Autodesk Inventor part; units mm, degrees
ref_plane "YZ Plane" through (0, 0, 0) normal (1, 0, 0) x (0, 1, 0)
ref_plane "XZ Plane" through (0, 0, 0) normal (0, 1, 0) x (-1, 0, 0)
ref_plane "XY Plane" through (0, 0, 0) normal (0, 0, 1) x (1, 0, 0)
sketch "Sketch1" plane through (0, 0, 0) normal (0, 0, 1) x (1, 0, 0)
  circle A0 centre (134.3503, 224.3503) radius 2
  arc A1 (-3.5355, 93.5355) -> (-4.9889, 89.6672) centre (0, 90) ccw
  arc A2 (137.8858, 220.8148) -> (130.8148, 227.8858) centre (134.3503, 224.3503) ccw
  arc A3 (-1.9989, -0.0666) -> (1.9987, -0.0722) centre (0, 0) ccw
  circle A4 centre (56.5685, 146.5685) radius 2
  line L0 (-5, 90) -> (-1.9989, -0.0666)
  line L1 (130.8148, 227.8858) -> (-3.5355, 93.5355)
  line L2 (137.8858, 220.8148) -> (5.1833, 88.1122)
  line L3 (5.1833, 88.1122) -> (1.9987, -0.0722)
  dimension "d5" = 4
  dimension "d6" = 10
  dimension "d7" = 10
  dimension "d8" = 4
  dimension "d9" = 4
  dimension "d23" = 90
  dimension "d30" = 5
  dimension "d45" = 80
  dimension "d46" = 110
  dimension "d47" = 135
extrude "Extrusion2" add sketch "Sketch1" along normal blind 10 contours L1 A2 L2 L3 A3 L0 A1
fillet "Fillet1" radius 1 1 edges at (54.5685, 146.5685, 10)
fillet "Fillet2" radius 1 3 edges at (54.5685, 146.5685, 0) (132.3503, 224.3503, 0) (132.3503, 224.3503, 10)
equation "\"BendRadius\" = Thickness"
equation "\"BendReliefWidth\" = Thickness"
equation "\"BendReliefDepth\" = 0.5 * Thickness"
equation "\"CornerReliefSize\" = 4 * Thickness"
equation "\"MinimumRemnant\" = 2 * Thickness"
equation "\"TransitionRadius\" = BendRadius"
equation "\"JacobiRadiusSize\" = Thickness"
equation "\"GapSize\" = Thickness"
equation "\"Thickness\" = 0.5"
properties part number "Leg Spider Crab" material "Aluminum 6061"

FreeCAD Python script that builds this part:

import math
import FreeCAD as App
import Part
import Sketcher

V = App.Vector
Q = App.Units.Quantity


def edges_at(feature, points):
    """Names of the edges that pass closest to the given points."""
    edges = feature.Shape.Edges
    near = lambda p: min(range(len(edges)), key=lambda i: edges[i].distToShape(Part.Vertex(*p))[0])
    return sorted({f"Edge{near(p) + 1}" for p in points})

doc = App.newDocument("Part")
body = doc.addObject("PartDesign::Body", "Body")

sketch1 = body.newObject("Sketcher::SketchObject", "Sketch")
sketch1.AttachmentSupport = (doc.getObject("XY_Plane"), [""])
sketch1.MapMode = "FlatFace"
sketch1.addGeometry(Part.LineSegment(V(130.8, 227.9, 0), V(-3.5, 93.5, 0)), False)
sketch1.addGeometry(Part.ArcOfCircle(Part.Circle(V(0, 90, 0), V(0, 0, 1), 5), math.radians(135), math.radians(180)), False)
sketch1.addGeometry(Part.LineSegment(V(-5, 90, 0), V(-2, -0.1, 0)), False)
sketch1.addGeometry(Part.ArcOfCircle(Part.Circle(V(0, 0, 0), V(0, 0, 1), 2), math.radians(-178), math.radians(-2)), False)
sketch1.addGeometry(Part.LineSegment(V(2, -0.1, 0), V(5.2, 88.1, 0)), False)
sketch1.addGeometry(Part.LineSegment(V(5.2, 88.1, 0), V(137.9, 220.8, 0)), False)
sketch1.addGeometry(Part.ArcOfCircle(Part.Circle(V(134.4, 224.4, 0), V(0, 0, 1), 5), math.radians(-45), math.radians(135)), False)
sketch1.addGeometry(Part.Circle(V(56.6, 146.6, 0), V(0, 0, 1), 2), False)
sketch1.addGeometry(Part.Circle(V(134.4, 224.4, 0), V(0, 0, 1), 2), False)
sketch1.addConstraint(Sketcher.Constraint("Tangent", 0, 2, 1, 1))
sketch1.addConstraint(Sketcher.Constraint("Coincident", 1, 2, 2, 1))
sketch1.addConstraint(Sketcher.Constraint("Tangent", 2, 2, 3, 1))
sketch1.addConstraint(Sketcher.Constraint("Tangent", 3, 2, 4, 1))
sketch1.addConstraint(Sketcher.Constraint("Coincident", 4, 2, 5, 1))
sketch1.addConstraint(Sketcher.Constraint("Tangent", 5, 2, 6, 1))
sketch1.addConstraint(Sketcher.Constraint("Tangent", 6, 2, 0, 1))
sketch1.addConstraint(Sketcher.Constraint("Coincident", 3, 3, -1, 1))
sketch1.addConstraint(Sketcher.Constraint("Coincident", 8, 3, 6, 3))
sketch1.addConstraint(Sketcher.Constraint("Equal", 1, 6))
sketch1.addConstraint(Sketcher.Constraint("Equal", 3, 7))
sketch1.addConstraint(Sketcher.Constraint("Equal", 7, 8))
sketch1.addConstraint(Sketcher.Constraint("PointOnObject", 1, 3, -2))
sketch1.addConstraint(Sketcher.Constraint("Parallel", 0, 5))
sketch1.addConstraint(Sketcher.Constraint("Diameter", 7, 4.0))
sketch1.addConstraint(Sketcher.Constraint("Radius", 1, 5.0))
sketch1.addConstraint(Sketcher.Constraint("Angle", 0, Q("-135 deg")))
sketch1.addConstraint(Sketcher.Constraint("DistanceY", -1, 1, 1, 3, 90.0))
sketch1.addConstraint(Sketcher.Constraint("DistanceY", -1, 1, 1, 2, 90.0))
sketch1.addConstraint(Sketcher.Constraint("Distance", 0, 190.0))
sketch1.addConstraint(Sketcher.Constraint("Distance", 4, 88.242))
sketch1.addConstraint(Sketcher.Constraint("DistanceX", 0, 2, 7, 3, 60.104))
sketch1.addConstraint(Sketcher.Constraint("DistanceY", 0, 2, 7, 3, 53.033))
pad1 = body.newObject("PartDesign::Pad", "Pad")
pad1.Profile = sketch1
pad1.Length = 10
doc.recompute()

fillet = body.newObject("PartDesign::Fillet", "Fillet")
fillet.Base = (pad1, edges_at(pad1, [(54.569, 146.569, 10)]))
fillet.Radius = 1
doc.recompute()

fillet2 = body.newObject("PartDesign::Fillet", "Fillet001")
fillet2.Base = (fillet, edges_at(fillet, [(54.569, 146.569, 0), (132.35, 224.35, 0), (132.35, 224.35, 10)]))
fillet2.Radius = 1

doc.recompute()
